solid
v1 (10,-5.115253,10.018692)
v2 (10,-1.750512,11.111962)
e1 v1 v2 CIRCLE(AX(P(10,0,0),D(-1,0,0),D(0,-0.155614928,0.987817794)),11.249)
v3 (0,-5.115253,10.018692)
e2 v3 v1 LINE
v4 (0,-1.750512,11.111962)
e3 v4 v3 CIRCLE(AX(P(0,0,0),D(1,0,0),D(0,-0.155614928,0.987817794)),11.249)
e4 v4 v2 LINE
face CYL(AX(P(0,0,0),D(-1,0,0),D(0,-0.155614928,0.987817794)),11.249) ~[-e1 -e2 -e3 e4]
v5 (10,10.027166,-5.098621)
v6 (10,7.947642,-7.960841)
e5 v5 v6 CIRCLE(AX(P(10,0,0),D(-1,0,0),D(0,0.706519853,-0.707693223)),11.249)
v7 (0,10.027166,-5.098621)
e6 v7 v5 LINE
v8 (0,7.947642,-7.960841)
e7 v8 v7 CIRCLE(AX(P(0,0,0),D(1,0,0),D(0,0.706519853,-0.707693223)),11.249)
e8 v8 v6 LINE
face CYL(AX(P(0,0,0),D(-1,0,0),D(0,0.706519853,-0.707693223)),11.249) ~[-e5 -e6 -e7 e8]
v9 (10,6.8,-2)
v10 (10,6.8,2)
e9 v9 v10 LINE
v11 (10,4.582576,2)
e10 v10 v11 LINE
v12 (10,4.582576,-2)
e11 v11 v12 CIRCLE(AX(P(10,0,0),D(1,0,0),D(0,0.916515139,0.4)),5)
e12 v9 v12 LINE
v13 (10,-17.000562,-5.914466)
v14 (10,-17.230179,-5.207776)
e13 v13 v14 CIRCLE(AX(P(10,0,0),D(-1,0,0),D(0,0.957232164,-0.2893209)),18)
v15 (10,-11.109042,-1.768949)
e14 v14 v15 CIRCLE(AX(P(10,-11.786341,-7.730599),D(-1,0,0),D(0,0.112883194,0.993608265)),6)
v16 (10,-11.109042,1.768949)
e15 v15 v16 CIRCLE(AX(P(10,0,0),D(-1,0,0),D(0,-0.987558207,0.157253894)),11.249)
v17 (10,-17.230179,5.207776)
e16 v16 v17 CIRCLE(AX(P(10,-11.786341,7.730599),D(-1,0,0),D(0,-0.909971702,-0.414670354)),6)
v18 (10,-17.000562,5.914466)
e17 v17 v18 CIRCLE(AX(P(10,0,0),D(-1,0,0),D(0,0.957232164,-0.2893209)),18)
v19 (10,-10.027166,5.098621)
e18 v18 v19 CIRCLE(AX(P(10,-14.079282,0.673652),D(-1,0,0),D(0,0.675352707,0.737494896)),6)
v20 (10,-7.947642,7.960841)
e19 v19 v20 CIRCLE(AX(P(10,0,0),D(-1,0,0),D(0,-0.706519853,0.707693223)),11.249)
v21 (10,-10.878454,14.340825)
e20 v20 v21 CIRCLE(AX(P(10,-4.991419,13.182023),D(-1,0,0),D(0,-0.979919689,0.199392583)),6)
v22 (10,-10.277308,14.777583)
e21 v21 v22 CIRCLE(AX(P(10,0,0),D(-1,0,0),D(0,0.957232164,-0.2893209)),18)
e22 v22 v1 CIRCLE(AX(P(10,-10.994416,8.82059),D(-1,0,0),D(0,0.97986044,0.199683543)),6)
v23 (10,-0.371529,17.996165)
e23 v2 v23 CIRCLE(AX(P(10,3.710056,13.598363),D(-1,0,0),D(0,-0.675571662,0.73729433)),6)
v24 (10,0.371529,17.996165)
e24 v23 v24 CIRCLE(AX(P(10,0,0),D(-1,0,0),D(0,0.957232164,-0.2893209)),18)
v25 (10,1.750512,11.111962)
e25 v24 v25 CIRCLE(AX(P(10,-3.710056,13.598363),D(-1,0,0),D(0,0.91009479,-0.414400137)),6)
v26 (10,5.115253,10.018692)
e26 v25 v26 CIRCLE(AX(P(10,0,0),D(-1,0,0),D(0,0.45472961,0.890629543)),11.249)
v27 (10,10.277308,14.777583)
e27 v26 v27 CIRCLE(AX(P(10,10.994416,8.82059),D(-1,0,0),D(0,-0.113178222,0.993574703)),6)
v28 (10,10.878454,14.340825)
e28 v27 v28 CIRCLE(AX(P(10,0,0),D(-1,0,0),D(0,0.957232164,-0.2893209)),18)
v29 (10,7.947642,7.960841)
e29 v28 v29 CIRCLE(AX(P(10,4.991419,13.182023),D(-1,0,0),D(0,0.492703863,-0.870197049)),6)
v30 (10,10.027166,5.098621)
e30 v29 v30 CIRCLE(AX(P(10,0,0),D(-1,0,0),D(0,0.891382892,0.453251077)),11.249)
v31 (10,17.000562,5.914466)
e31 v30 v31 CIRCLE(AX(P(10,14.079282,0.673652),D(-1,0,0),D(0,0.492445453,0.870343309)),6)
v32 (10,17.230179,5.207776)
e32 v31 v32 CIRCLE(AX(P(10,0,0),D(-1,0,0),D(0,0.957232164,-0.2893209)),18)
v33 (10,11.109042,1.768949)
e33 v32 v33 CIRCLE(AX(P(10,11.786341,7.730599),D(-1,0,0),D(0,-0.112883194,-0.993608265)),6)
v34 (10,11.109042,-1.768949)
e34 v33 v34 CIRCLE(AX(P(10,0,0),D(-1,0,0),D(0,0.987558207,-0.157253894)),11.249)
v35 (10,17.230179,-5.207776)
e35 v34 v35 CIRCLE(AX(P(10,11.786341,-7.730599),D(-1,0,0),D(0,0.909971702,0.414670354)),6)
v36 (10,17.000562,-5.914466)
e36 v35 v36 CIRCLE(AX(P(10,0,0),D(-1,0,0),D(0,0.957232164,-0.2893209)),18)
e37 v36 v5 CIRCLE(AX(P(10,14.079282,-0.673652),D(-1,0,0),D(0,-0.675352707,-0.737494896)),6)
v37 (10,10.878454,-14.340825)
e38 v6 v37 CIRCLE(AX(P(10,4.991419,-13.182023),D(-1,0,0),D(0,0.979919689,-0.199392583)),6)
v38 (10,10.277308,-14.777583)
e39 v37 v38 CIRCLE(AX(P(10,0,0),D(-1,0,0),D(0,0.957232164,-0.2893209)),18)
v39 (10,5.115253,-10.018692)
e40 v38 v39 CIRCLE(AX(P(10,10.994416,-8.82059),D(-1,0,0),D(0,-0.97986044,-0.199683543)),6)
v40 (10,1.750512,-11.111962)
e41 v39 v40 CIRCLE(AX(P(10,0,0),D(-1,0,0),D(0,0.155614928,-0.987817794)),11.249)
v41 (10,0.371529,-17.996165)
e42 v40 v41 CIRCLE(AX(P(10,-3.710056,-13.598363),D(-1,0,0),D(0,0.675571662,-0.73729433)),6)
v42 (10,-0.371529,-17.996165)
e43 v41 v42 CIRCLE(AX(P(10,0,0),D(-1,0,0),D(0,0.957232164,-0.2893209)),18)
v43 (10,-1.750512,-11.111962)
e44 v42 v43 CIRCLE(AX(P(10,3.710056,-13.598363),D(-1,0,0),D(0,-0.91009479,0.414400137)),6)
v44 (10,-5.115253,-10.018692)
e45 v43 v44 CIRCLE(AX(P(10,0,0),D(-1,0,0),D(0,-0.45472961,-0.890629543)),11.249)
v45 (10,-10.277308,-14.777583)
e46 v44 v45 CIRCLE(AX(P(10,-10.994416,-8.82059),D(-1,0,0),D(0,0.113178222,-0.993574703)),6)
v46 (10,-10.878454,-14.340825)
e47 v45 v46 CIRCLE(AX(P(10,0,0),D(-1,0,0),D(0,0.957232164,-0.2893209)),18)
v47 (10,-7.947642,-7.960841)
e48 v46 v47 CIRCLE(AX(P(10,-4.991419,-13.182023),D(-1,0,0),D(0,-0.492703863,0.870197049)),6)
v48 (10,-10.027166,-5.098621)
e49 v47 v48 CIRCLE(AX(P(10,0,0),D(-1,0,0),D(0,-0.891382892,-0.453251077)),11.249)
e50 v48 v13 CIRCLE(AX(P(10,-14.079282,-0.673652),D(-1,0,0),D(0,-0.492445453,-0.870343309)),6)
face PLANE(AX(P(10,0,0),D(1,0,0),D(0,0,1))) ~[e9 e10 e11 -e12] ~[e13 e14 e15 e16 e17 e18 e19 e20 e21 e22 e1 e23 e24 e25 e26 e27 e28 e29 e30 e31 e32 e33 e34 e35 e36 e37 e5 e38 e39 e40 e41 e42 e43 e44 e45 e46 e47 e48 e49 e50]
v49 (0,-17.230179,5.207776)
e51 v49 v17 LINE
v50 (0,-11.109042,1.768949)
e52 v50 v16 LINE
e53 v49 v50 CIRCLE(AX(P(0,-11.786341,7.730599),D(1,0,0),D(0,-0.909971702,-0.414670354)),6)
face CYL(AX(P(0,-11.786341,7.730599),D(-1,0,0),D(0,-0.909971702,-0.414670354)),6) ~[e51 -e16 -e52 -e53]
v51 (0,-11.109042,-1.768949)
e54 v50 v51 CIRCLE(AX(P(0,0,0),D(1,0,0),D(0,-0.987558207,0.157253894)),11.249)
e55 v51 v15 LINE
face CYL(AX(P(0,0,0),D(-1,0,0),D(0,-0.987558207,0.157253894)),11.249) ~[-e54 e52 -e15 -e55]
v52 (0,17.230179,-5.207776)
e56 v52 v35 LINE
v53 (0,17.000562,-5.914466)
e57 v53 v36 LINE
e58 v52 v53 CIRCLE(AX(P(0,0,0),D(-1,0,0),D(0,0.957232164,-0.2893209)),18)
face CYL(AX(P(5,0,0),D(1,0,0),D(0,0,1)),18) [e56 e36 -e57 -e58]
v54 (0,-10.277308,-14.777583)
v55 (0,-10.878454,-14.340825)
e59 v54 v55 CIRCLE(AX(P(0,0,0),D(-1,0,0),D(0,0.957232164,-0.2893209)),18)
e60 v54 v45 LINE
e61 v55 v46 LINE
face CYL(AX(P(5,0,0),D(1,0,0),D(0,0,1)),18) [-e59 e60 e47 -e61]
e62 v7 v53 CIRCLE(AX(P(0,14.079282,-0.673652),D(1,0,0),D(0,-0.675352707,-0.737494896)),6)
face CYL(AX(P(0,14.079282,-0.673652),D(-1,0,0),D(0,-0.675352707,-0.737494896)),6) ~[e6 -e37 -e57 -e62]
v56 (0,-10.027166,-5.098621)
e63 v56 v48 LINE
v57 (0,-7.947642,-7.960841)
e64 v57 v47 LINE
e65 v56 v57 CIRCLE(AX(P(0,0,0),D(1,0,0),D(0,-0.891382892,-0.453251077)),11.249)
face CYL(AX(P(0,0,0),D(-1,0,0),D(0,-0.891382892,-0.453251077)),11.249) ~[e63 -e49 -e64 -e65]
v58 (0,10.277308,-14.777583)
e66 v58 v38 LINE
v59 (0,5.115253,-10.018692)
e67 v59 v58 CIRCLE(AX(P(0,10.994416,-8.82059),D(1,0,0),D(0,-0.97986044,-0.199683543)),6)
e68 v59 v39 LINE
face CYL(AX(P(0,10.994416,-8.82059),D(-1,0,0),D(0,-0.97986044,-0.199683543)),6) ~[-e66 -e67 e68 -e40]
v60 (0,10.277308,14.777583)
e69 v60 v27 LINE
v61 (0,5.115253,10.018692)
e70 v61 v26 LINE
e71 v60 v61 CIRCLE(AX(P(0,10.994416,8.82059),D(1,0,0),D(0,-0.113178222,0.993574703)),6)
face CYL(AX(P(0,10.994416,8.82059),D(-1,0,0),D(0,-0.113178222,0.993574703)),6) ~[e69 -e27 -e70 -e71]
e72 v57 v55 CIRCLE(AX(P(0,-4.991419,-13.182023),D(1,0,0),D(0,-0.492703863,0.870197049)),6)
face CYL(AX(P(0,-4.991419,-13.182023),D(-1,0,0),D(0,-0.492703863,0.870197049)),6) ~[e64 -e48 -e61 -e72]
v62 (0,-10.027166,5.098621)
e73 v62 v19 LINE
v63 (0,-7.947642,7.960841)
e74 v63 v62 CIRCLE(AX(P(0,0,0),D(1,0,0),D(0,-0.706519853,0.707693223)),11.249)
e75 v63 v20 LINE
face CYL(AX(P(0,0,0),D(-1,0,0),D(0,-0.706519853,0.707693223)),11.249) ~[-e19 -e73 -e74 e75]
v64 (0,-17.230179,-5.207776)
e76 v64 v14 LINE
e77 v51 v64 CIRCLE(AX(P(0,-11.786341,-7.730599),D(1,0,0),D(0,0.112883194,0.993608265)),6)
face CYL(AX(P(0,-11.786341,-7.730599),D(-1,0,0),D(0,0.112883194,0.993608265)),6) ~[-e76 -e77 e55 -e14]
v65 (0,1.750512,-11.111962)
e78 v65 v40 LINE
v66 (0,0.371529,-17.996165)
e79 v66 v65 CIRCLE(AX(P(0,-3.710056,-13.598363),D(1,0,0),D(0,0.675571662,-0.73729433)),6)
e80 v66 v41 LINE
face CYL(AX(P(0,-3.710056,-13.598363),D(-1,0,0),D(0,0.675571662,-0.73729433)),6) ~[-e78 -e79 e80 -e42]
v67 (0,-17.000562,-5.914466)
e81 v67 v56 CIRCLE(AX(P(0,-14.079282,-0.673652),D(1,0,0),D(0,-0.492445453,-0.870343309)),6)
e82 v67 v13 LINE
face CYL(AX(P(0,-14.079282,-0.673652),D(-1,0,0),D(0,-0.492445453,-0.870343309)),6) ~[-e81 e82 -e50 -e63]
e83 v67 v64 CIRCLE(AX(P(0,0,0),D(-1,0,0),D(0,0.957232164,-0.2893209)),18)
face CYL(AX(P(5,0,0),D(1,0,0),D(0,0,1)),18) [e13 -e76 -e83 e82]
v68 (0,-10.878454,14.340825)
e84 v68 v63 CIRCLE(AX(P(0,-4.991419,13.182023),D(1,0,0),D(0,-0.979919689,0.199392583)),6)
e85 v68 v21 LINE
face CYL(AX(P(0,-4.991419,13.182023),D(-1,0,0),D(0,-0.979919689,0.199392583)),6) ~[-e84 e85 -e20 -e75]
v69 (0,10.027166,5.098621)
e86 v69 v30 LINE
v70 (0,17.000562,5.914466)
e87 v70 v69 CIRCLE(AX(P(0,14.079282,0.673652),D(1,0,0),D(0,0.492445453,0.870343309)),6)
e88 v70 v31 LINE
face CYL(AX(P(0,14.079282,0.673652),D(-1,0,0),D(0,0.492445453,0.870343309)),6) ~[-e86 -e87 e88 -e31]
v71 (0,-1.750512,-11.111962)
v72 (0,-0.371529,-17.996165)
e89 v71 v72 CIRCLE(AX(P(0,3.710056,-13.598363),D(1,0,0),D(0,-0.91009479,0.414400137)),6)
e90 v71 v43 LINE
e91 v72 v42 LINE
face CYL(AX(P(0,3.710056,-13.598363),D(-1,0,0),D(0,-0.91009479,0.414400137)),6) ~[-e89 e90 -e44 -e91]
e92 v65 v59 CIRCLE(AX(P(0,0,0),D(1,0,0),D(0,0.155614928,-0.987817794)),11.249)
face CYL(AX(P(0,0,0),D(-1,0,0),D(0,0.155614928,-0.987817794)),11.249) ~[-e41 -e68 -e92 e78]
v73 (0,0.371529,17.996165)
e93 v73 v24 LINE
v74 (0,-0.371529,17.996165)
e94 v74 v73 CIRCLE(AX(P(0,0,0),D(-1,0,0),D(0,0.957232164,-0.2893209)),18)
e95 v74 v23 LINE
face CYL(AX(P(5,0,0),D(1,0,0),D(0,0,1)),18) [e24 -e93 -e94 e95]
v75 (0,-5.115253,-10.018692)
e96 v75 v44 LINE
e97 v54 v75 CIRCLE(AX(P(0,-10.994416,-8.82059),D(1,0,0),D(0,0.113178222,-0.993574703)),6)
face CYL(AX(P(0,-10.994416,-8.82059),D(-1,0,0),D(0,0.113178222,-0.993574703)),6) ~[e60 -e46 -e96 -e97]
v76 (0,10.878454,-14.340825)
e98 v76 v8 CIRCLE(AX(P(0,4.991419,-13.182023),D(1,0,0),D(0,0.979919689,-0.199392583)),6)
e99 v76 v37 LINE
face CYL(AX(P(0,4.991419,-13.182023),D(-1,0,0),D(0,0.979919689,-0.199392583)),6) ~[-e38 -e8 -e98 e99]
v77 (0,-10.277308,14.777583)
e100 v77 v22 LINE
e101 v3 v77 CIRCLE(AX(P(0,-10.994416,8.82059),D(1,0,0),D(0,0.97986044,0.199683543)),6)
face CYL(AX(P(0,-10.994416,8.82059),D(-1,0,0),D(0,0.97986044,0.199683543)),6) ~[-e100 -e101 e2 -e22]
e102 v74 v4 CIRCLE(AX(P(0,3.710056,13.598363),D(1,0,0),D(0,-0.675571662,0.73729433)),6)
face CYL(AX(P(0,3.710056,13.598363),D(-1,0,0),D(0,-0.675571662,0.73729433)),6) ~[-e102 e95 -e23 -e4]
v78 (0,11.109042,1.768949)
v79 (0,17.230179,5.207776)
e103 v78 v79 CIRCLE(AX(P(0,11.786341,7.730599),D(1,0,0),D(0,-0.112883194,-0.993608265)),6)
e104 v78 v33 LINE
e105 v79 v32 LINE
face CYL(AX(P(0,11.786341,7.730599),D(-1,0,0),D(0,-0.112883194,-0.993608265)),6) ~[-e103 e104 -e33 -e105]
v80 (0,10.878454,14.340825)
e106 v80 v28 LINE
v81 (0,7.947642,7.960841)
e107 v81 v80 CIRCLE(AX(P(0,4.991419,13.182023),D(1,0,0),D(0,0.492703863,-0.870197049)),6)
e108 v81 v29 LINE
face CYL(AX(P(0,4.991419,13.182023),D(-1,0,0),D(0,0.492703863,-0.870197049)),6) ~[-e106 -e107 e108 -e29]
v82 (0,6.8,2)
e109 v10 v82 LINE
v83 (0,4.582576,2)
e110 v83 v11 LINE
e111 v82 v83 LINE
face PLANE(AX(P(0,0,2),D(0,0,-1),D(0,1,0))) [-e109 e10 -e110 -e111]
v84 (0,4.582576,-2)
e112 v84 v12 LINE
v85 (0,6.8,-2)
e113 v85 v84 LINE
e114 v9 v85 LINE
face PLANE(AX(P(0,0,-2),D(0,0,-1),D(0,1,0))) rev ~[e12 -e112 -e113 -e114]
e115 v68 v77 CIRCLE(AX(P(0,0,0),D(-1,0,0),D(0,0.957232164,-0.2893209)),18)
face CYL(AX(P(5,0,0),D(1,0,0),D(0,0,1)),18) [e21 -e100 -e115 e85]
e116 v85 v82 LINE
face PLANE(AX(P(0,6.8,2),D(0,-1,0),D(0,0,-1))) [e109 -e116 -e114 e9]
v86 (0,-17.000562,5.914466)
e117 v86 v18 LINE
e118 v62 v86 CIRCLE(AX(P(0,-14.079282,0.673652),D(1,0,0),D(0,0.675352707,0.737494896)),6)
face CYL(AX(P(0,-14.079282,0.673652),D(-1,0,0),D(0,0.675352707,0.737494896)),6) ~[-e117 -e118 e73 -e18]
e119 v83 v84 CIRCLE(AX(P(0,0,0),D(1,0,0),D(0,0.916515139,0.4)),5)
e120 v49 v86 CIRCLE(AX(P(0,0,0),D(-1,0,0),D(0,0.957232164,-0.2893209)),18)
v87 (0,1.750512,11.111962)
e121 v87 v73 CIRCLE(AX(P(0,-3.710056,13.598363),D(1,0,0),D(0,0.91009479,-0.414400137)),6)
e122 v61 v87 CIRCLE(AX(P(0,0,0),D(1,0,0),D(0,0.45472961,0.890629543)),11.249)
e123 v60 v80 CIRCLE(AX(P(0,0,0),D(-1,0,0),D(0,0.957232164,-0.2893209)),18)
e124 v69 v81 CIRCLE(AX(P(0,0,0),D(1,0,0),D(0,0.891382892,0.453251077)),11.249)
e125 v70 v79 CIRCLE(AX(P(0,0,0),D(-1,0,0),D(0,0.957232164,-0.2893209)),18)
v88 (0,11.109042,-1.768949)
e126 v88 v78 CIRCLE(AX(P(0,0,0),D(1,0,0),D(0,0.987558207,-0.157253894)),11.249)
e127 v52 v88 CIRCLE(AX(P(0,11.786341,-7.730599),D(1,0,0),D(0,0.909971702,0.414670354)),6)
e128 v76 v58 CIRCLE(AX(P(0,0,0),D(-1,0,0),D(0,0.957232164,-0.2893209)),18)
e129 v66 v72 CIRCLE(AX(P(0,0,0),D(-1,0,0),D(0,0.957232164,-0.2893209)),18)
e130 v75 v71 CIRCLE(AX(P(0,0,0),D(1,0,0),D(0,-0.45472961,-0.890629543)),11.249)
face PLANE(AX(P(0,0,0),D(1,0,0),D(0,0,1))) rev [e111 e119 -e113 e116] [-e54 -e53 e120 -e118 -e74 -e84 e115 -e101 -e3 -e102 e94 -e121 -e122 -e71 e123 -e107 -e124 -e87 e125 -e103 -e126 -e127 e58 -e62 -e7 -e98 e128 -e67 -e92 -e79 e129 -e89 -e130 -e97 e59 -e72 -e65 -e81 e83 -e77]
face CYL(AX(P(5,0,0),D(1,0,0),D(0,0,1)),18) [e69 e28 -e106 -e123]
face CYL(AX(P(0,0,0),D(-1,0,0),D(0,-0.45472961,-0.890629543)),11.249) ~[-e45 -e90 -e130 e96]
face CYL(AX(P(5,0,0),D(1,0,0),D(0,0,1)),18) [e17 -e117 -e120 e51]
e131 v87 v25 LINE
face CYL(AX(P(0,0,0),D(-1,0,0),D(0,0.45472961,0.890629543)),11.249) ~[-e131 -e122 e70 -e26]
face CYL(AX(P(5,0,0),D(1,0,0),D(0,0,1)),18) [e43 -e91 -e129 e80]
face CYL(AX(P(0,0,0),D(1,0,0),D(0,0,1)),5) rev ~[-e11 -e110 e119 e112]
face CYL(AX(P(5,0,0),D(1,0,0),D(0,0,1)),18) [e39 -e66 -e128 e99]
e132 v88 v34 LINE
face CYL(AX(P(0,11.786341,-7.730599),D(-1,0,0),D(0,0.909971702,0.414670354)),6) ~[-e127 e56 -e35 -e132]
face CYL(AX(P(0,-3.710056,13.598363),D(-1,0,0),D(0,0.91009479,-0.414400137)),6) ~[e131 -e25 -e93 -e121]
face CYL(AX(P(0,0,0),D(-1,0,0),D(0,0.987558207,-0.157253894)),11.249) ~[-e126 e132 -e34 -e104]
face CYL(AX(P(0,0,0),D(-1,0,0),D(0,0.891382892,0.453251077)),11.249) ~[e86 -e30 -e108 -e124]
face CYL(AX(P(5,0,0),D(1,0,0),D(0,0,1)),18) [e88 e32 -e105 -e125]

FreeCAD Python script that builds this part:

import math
import FreeCAD as App
import Part
import Sketcher


def add_polygon(sketch, points):
    """Adds a closed chain of lines whose ends are joined by coincident constraints."""
    first, n = sketch.GeometryCount, len(points)
    for a, b in zip(points, points[1:] + points[:1]):
        sketch.addGeometry(Part.LineSegment(App.Vector(*a, 0), App.Vector(*b, 0)), False)
    for i in range(n):
        sketch.addConstraint(Sketcher.Constraint("Coincident", first + i, 2, first + (i + 1) % n, 1))

doc = App.newDocument("Part")
body = doc.addObject("PartDesign::Body", "Body")

# Sketch on XZ plane
sketch1 = doc.addObject("Sketcher::SketchObject", "Sketch")
body.addObject(sketch1)
sketch1.AttachmentSupport = (doc.XZ_Plane, [""])
sketch1.MapMode = "FlatFace"
add_polygon(sketch1, [(0, -18), (0, 0), (10, 0), (10, -18)])  # lines 0-3
sketch1.addConstraint(Sketcher.Constraint("Vertical", 0))
sketch1.addConstraint(Sketcher.Constraint("Horizontal", 1))
sketch1.addConstraint(Sketcher.Constraint("Vertical", 2))
sketch1.addConstraint(Sketcher.Constraint("Horizontal", 3))
sketch1.addConstraint(Sketcher.Constraint("Coincident", 0, 2, -1, 1))
sketch1.addConstraint(Sketcher.Constraint("DistanceX", 1, 1, 1, 2, 10.0))
sketch1.addConstraint(Sketcher.Constraint("DistanceY", 0, 1, 0, 2, 18.0))
revolution = doc.addObject("PartDesign::Revolution", "Revolution")
body.addObject(revolution)
revolution.Profile = sketch1
revolution.ReferenceAxis = (sketch1, ["H_Axis"])
revolution.Angle = 360

# Sketch on YZ plane
sketch2 = doc.addObject("Sketcher::SketchObject", "Sketch001")
body.addObject(sketch2)
sketch2.AttachmentSupport = (doc.YZ_Plane, [""])
sketch2.MapMode = "FlatFace"
sketch2.addGeometry(Part.ArcOfCircle(Part.Circle(App.Vector(0, 0, 0), App.Vector(0, 0, 1), 11.249), math.radians(-9.047538), math.radians(9.047538)), False)
sketch2.addGeometry(Part.ArcOfCircle(Part.Circle(App.Vector(11.786341, -7.730599, 0), App.Vector(0, 0, 1), 6), math.radians(24.498559), math.radians(96.481546)), False)
sketch2.addGeometry(Part.ArcOfCircle(Part.Circle(App.Vector(0, 0, 0), App.Vector(0, 0, 1), 18.0254), math.radians(-16.908482), math.radians(16.908482)), False)
sketch2.addGeometry(Part.ArcOfCircle(Part.Circle(App.Vector(11.786341, 7.730599, 0), App.Vector(0, 0, 1), 6), math.radians(-96.481546), math.radians(-24.498559)), False)
sketch2.addConstraint(Sketcher.Constraint("Coincident", 0, 1, 1, 2))
sketch2.addConstraint(Sketcher.Constraint("Coincident", 1, 1, 2, 1))
sketch2.addConstraint(Sketcher.Constraint("Coincident", 2, 2, 3, 2))
sketch2.addConstraint(Sketcher.Constraint("Coincident", 3, 1, 0, 2))
sketch2.addConstraint(Sketcher.Constraint("Coincident", 0, 3, -1, 1))
sketch2.addConstraint(Sketcher.Constraint("Coincident", 2, 3, -1, 1))
sketch2.addConstraint(Sketcher.Constraint("Equal", 1, 3))
sketch2.addConstraint(Sketcher.Constraint("Symmetric", 1, 3, 3, 3, -1))
sketch2.addConstraint(Sketcher.Constraint("Radius", 1, 6.0))
sketch2.addConstraint(Sketcher.Constraint("Radius", 0, 11.249))
sketch2.addConstraint(Sketcher.Constraint("Radius", 2, 18.0254))
sketch2.addConstraint(Sketcher.Constraint("DistanceY", 1, 3, -1, 1, 7.730599))
sketch2.addConstraint(Sketcher.Constraint("DistanceX", 0, 1, 1, 3, 0.677299))
pocket1 = doc.addObject("PartDesign::Pocket", "Pocket")
body.addObject(pocket1)
pocket1.Profile = sketch2
pocket1.Type = "ThroughAll"
pocket1.Reversed = True
doc.recompute()

polarpattern = doc.addObject("PartDesign::PolarPattern", "PolarPattern")
body.addObject(polarpattern)
polarpattern.Originals = [pocket1]
polarpattern.Axis = (doc.X_Axis, [""])
polarpattern.Angle = 360
polarpattern.Occurrences = 10
body.Tip = polarpattern

# Sketch on YZ plane
sketch3 = doc.addObject("Sketcher::SketchObject", "Sketch002")
body.addObject(sketch3)
sketch3.AttachmentSupport = (doc.YZ_Plane, [""])
sketch3.MapMode = "FlatFace"
sketch3.addGeometry(Part.Circle(App.Vector(0, 0, 0), App.Vector(0, 0, 1), 5), False)
sketch3.addConstraint(Sketcher.Constraint("Coincident", 0, 3, -1, 1))
sketch3.addConstraint(Sketcher.Constraint("Diameter", 0, 10.0))
pocket2 = doc.addObject("PartDesign::Pocket", "Pocket001")
body.addObject(pocket2)
pocket2.Profile = sketch3
pocket2.Length = 100.000102
pocket2.Midplane = True

# Sketch on YZ plane
sketch4 = doc.addObject("Sketcher::SketchObject", "Sketch003")
body.addObject(sketch4)
sketch4.AttachmentSupport = (doc.YZ_Plane, [""])
sketch4.MapMode = "FlatFace"
add_polygon(sketch4, [(6.8, 2), (0, 2), (0, -2), (6.8, -2)])  # lines 0-3
sketch4.addConstraint(Sketcher.Constraint("Horizontal", 0))
sketch4.addConstraint(Sketcher.Constraint("Vertical", 1))
sketch4.addConstraint(Sketcher.Constraint("Horizontal", 2))
sketch4.addConstraint(Sketcher.Constraint("Vertical", 3))
sketch4.addConstraint(Sketcher.Constraint("Symmetric", 0, 2, 1, 2, -1, 1))
sketch4.addConstraint(Sketcher.Constraint("DistanceY", 1, 2, 1, 1, 4.0))
sketch4.addConstraint(Sketcher.Constraint("DistanceX", 0, 2, 0, 1, 6.8))
pocket3 = doc.addObject("PartDesign::Pocket", "Pocket002")
body.addObject(pocket3)
pocket3.Profile = sketch4
pocket3.Length = 100.000102
pocket3.Midplane = True

doc.recompute()
